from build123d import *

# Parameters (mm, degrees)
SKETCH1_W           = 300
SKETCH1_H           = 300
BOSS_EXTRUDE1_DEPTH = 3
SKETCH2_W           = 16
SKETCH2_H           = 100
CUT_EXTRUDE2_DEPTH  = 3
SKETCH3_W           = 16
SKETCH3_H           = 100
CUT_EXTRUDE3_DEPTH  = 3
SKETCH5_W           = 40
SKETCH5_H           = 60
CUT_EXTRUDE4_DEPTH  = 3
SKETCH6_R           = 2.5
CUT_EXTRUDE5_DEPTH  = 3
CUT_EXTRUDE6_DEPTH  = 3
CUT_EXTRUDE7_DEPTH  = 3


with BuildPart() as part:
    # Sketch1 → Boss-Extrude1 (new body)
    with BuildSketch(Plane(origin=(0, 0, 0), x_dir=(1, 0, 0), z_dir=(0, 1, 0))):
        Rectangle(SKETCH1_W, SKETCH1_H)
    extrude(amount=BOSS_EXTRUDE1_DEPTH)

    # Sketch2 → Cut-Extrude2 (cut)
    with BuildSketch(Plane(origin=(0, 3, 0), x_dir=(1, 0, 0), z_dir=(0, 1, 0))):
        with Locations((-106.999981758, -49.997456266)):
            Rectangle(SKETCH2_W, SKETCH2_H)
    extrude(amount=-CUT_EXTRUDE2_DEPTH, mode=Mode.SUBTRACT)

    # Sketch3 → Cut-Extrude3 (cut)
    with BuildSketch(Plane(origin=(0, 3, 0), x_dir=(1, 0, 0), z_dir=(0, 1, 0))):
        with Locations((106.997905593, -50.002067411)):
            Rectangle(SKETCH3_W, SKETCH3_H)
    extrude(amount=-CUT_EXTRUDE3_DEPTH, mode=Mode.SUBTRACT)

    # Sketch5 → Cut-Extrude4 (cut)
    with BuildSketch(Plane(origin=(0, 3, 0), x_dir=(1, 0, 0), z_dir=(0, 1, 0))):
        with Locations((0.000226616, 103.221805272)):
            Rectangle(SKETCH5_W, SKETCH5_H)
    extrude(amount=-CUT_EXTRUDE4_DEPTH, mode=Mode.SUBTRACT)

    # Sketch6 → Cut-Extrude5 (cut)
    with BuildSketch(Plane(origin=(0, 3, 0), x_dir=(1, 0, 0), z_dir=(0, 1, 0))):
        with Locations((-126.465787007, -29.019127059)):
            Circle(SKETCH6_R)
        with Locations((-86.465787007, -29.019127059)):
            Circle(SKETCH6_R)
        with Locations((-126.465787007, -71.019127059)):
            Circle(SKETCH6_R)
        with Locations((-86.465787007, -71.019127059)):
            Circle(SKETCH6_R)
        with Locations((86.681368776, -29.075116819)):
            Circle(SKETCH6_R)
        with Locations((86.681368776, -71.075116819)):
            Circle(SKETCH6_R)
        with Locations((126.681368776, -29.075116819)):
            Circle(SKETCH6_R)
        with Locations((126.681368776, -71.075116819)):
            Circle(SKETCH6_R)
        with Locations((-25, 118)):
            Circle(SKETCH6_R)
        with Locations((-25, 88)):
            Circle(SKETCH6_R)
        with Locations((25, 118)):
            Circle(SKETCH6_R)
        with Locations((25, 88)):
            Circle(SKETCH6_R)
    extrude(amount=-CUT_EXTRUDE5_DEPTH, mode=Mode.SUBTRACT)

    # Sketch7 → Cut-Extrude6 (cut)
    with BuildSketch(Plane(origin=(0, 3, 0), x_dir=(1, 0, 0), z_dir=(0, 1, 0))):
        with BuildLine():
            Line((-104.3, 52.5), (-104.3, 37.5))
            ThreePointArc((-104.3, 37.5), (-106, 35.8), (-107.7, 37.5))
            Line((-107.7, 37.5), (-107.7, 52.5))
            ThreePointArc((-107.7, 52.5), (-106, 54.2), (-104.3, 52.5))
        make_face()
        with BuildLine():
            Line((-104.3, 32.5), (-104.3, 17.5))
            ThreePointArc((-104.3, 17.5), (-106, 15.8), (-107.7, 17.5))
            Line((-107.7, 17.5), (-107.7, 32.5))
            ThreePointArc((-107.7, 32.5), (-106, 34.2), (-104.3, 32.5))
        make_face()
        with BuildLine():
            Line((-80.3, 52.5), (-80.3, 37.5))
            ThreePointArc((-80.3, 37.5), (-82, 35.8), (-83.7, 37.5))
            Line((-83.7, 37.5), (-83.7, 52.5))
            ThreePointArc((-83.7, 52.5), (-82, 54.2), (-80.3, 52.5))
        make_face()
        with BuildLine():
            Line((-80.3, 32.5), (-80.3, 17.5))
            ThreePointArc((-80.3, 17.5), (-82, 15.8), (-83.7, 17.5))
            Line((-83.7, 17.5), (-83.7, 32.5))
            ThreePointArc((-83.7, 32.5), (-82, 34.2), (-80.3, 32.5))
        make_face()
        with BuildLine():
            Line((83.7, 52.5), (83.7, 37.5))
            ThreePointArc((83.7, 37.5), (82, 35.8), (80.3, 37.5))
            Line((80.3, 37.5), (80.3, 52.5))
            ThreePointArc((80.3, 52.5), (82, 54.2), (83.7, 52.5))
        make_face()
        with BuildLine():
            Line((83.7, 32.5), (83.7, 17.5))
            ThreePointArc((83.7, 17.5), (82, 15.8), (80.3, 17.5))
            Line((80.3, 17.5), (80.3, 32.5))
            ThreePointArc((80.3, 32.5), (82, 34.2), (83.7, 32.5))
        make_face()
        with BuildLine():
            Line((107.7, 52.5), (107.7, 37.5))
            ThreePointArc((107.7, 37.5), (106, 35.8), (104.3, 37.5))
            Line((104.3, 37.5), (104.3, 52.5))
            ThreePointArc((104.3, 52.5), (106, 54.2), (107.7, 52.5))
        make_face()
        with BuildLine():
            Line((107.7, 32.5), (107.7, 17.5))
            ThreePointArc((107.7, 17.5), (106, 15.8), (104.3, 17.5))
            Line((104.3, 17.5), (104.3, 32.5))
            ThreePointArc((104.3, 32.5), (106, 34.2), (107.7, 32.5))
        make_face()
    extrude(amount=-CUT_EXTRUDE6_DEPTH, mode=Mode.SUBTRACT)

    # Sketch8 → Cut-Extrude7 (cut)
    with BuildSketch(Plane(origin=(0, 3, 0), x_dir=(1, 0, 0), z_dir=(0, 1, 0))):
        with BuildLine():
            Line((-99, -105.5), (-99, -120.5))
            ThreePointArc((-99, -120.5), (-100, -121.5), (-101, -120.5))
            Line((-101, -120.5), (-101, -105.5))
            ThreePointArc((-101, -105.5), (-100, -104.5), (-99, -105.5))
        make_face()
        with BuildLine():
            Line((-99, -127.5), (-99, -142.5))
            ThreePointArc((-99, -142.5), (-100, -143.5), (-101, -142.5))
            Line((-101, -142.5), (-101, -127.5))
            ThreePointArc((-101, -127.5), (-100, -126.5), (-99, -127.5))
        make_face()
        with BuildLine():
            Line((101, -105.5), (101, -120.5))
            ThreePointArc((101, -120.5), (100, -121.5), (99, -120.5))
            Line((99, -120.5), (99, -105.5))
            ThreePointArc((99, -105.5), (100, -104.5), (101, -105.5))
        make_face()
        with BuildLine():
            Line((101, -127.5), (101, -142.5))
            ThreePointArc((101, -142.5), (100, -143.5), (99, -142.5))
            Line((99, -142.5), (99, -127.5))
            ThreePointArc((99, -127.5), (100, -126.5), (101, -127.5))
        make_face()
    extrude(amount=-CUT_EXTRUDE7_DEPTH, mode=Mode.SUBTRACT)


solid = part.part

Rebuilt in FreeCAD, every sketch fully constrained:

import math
import FreeCAD as App
import Part
import Sketcher
Q = App.Units.Quantity

doc = App.newDocument("Part")
body = doc.addObject("PartDesign::Body", "Body")

sketch1 = body.newObject("Sketcher::SketchObject", "Sketch")
sketch1.AttachmentSupport = (doc.getObject("XZ_Plane"), [""])
sketch1.MapMode = "FlatFace"
sketch1.addGeometry([
    Part.LineSegment(App.Vector(-150, -150, 0), App.Vector(-150, 150, 0)),
    Part.LineSegment(App.Vector(-150, 150, 0), App.Vector(150, 150, 0)),
    Part.LineSegment(App.Vector(150, 150, 0), App.Vector(150, -150, 0)),
    Part.LineSegment(App.Vector(150, -150, 0), App.Vector(-150, -150, 0)),
], False)
sketch1.addConstraint([
    Sketcher.Constraint("Coincident", 0, 2, 1, 1),
    Sketcher.Constraint("Coincident", 1, 2, 2, 1),
    Sketcher.Constraint("Coincident", 2, 2, 3, 1),
    Sketcher.Constraint("Coincident", 3, 2, 0, 1),
    Sketcher.Constraint("Vertical", 0),
    Sketcher.Constraint("Horizontal", 1),
    Sketcher.Constraint("Vertical", 2),
    Sketcher.Constraint("Horizontal", 3),
    Sketcher.Constraint("Symmetric", 0, 2, 2, 2, -1, 1),
    Sketcher.Constraint("Equal", 3, 0),
    Sketcher.Constraint("DistanceX", 1, 1, 1, 2, Q("300 mm")),
])
pad1 = body.newObject("PartDesign::Pad", "Pad")
pad1.Profile = sketch1
pad1.Length = 3
pad1.Reversed = True

sketch2 = body.newObject("Sketcher::SketchObject", "Sketch001")
sketch2.AttachmentSupport = (doc.getObject("XZ_Plane"), [""])
sketch2.MapMode = "FlatFace"
sketch2.AttachmentOffset = App.Placement(App.Vector(0, 0, -3), App.Rotation())
sketch2.addGeometry([
    Part.LineSegment(App.Vector(-115, 0, 0), App.Vector(-115, 100, 0)),
    Part.LineSegment(App.Vector(-115, 100, 0), App.Vector(-99, 100, 0)),
    Part.LineSegment(App.Vector(-99, 100, 0), App.Vector(-99, 0, 0)),
    Part.LineSegment(App.Vector(-99, 0, 0), App.Vector(-115, 0, 0)),
], False)
sketch2.addConstraint([
    Sketcher.Constraint("Coincident", 0, 2, 1, 1),
    Sketcher.Constraint("Coincident", 1, 2, 2, 1),
    Sketcher.Constraint("Coincident", 2, 2, 3, 1),
    Sketcher.Constraint("Coincident", 3, 2, 0, 1),
    Sketcher.Constraint("Vertical", 0),
    Sketcher.Constraint("Horizontal", 1),
    Sketcher.Constraint("Vertical", 2),
    Sketcher.Constraint("Horizontal", 3),
    Sketcher.Constraint("DistanceX", 1, 1, 1, 2, Q("16 mm")),
    Sketcher.Constraint("DistanceY", 0, 1, 0, 2, Q("100 mm")),
    Sketcher.Constraint("DistanceX", 0, 2, -1, 1, Q("114.999982 mm")),
    Sketcher.Constraint("DistanceY", -1, 1, 0, 2, Q("99.997456 mm")),
])
pocket1 = body.newObject("PartDesign::Pocket", "Pocket")
pocket1.Profile = sketch2
pocket1.Length = 3
pocket1.Reversed = True

sketch3 = body.newObject("Sketcher::SketchObject", "Sketch002")
sketch3.AttachmentSupport = (doc.getObject("XZ_Plane"), [""])
sketch3.MapMode = "FlatFace"
sketch3.AttachmentOffset = App.Placement(App.Vector(0, 0, -3), App.Rotation())
sketch3.addGeometry([
    Part.LineSegment(App.Vector(99, 0, 0), App.Vector(99, 100, 0)),
    Part.LineSegment(App.Vector(99, 100, 0), App.Vector(115, 100, 0)),
    Part.LineSegment(App.Vector(115, 100, 0), App.Vector(115, 0, 0)),
    Part.LineSegment(App.Vector(115, 0, 0), App.Vector(99, 0, 0)),
], False)
sketch3.addConstraint([
    Sketcher.Constraint("Coincident", 0, 2, 1, 1),
    Sketcher.Constraint("Coincident", 1, 2, 2, 1),
    Sketcher.Constraint("Coincident", 2, 2, 3, 1),
    Sketcher.Constraint("Coincident", 3, 2, 0, 1),
    Sketcher.Constraint("Vertical", 0),
    Sketcher.Constraint("Horizontal", 1),
    Sketcher.Constraint("Vertical", 2),
    Sketcher.Constraint("Horizontal", 3),
    Sketcher.Constraint("DistanceX", 1, 1, 1, 2, Q("16 mm")),
    Sketcher.Constraint("DistanceY", 0, 1, 0, 2, Q("100 mm")),
    Sketcher.Constraint("DistanceX", -1, 1, 0, 2, Q("98.997906 mm")),
    Sketcher.Constraint("DistanceY", -1, 1, 0, 2, Q("100.002067 mm")),
])
pocket2 = body.newObject("PartDesign::Pocket", "Pocket001")
pocket2.Profile = sketch3
pocket2.Length = 3
pocket2.Reversed = True

sketch4 = body.newObject("Sketcher::SketchObject", "Sketch003")
sketch4.AttachmentSupport = (doc.getObject("XZ_Plane"), [""])
sketch4.MapMode = "FlatFace"
sketch4.AttachmentOffset = App.Placement(App.Vector(0, 0, -3), App.Rotation())
sketch4.addGeometry([
    Part.LineSegment(App.Vector(-20, -133, 0), App.Vector(-20, -73, 0)),
    Part.LineSegment(App.Vector(-20, -73, 0), App.Vector(20, -73, 0)),
    Part.LineSegment(App.Vector(20, -73, 0), App.Vector(20, -133, 0)),
    Part.LineSegment(App.Vector(20, -133, 0), App.Vector(-20, -133, 0)),
], False)
sketch4.addConstraint([
    Sketcher.Constraint("Coincident", 0, 2, 1, 1),
    Sketcher.Constraint("Coincident", 1, 2, 2, 1),
    Sketcher.Constraint("Coincident", 2, 2, 3, 1),
    Sketcher.Constraint("Coincident", 3, 2, 0, 1),
    Sketcher.Constraint("Vertical", 0),
    Sketcher.Constraint("Horizontal", 1),
    Sketcher.Constraint("Vertical", 2),
    Sketcher.Constraint("Horizontal", 3),
    Sketcher.Constraint("DistanceX", 1, 1, 1, 2, Q("40 mm")),
    Sketcher.Constraint("DistanceY", 0, 1, 0, 2, Q("60 mm")),
    Sketcher.Constraint("DistanceX", 0, 2, -1, 1, Q("19.999773 mm")),
    Sketcher.Constraint("DistanceY", 0, 2, -1, 1, Q("73.221805 mm")),
])
pocket3 = body.newObject("PartDesign::Pocket", "Pocket002")
pocket3.Profile = sketch4
pocket3.Length = 3
pocket3.Reversed = True

sketch5 = body.newObject("Sketcher::SketchObject", "Sketch004")
sketch5.AttachmentSupport = (doc.getObject("XZ_Plane"), [""])
sketch5.MapMode = "FlatFace"
sketch5.AttachmentOffset = App.Placement(App.Vector(0, 0, -3), App.Rotation())
sketch5.addGeometry([
    Part.Circle(App.Vector(-126.5, 29, 0), App.Vector(0, 0, 1), 2.5),
    Part.Circle(App.Vector(-86.5, 29, 0), App.Vector(0, 0, 1), 2.5),
    Part.Circle(App.Vector(-126.5, 71, 0), App.Vector(0, 0, 1), 2.5),
    Part.Circle(App.Vector(-86.5, 71, 0), App.Vector(0, 0, 1), 2.5),
    Part.Circle(App.Vector(86.7, 29.1, 0), App.Vector(0, 0, 1), 2.5),
    Part.Circle(App.Vector(86.7, 71.1, 0), App.Vector(0, 0, 1), 2.5),
    Part.Circle(App.Vector(126.7, 29.1, 0), App.Vector(0, 0, 1), 2.5),
    Part.Circle(App.Vector(126.7, 71.1, 0), App.Vector(0, 0, 1), 2.5),
    Part.Circle(App.Vector(-25, -118, 0), App.Vector(0, 0, 1), 2.5),
    Part.Circle(App.Vector(-25, -88, 0), App.Vector(0, 0, 1), 2.5),
    Part.Circle(App.Vector(25, -118, 0), App.Vector(0, 0, 1), 2.5),
    Part.Circle(App.Vector(25, -88, 0), App.Vector(0, 0, 1), 2.5),
], False)
sketch5.addConstraint([
    Sketcher.Constraint("Equal", 0, 1),
    Sketcher.Constraint("Equal", 1, 2),
    Sketcher.Constraint("Equal", 2, 3),
    Sketcher.Constraint("Equal", 3, 4),
    Sketcher.Constraint("Equal", 4, 5),
    Sketcher.Constraint("Equal", 5, 6),
    Sketcher.Constraint("Equal", 6, 7),
    Sketcher.Constraint("Equal", 7, 8),
    Sketcher.Constraint("Equal", 8, 9),
    Sketcher.Constraint("Equal", 9, 10),
    Sketcher.Constraint("Equal", 10, 11),
    Sketcher.Constraint("Symmetric", 8, 3, 10, 3, -2),
    Sketcher.Constraint("Symmetric", 9, 3, 11, 3, -2),
    Sketcher.Constraint("Horizontal", 0, 3, 1, 3),
    Sketcher.Constraint("Horizontal", 2, 3, 3, 3),
    Sketcher.Constraint("Horizontal", 4, 3, 6, 3),
    Sketcher.Constraint("Horizontal", 5, 3, 7, 3),
    Sketcher.Constraint("Vertical", 0, 3, 2, 3),
    Sketcher.Constraint("Vertical", 1, 3, 3, 3),
    Sketcher.Constraint("Vertical", 4, 3, 5, 3),
    Sketcher.Constraint("Vertical", 6, 3, 7, 3),
    Sketcher.Constraint("Vertical", 8, 3, 9, 3),
    Sketcher.Constraint("Diameter", 0, Q("5 mm")),
    Sketcher.Constraint("DistanceX", 8, 3, -1, 1, Q("25 mm")),
    Sketcher.Constraint("DistanceY", 8, 3, -1, 1, Q("118 mm")),
    Sketcher.Constraint("DistanceY", 9, 3, -1, 1, Q("88 mm")),
    Sketcher.Constraint("DistanceX", 0, 3, 1, 3, Q("40 mm")),
    Sketcher.Constraint("DistanceY", 0, 3, 2, 3, Q("42 mm")),
    Sketcher.Constraint("DistanceY", 4, 3, 5, 3, Q("42 mm")),
    Sketcher.Constraint("DistanceX", 4, 3, 6, 3, Q("40 mm")),
    Sketcher.Constraint("DistanceX", -1, 1, 4, 3, Q("86.681369 mm")),
    Sketcher.Constraint("DistanceY", 1, 3, 4, 3, Q("0.05599 mm")),
    Sketcher.Constraint("DistanceX", 0, 3, -1, 1, Q("126.465787 mm")),
    Sketcher.Constraint("DistanceY", -1, 1, 0, 3, Q("29.019127 mm")),
])
pocket4 = body.newObject("PartDesign::Pocket", "Pocket003")
pocket4.Profile = sketch5
pocket4.Length = 3
pocket4.Reversed = True

sketch6 = body.newObject("Sketcher::SketchObject", "Sketch005")
sketch6.AttachmentSupport = (doc.getObject("XZ_Plane"), [""])
sketch6.MapMode = "FlatFace"
sketch6.AttachmentOffset = App.Placement(App.Vector(0, 0, -3), App.Rotation())
sketch6.addGeometry([
    Part.LineSegment(App.Vector(-104.3, -37.5, 0), App.Vector(-104.3, -52.5, 0)),
    Part.ArcOfCircle(Part.Circle(App.Vector(-106, -52.5, 0), App.Vector(0, 0, 1), 1.7), math.radians(180), math.radians(360)),
    Part.LineSegment(App.Vector(-107.7, -52.5, 0), App.Vector(-107.7, -37.5, 0)),
    Part.ArcOfCircle(Part.Circle(App.Vector(-106, -37.5, 0), App.Vector(0, 0, 1), 1.7), math.radians(0), math.radians(180)),
    Part.LineSegment(App.Vector(-104.3, -17.5, 0), App.Vector(-104.3, -32.5, 0)),
    Part.ArcOfCircle(Part.Circle(App.Vector(-106, -32.5, 0), App.Vector(0, 0, 1), 1.7), math.radians(180), math.radians(360)),
    Part.LineSegment(App.Vector(-107.7, -32.5, 0), App.Vector(-107.7, -17.5, 0)),
    Part.ArcOfCircle(Part.Circle(App.Vector(-106, -17.5, 0), App.Vector(0, 0, 1), 1.7), math.radians(0), math.radians(180)),
    Part.LineSegment(App.Vector(-80.3, -37.5, 0), App.Vector(-80.3, -52.5, 0)),
    Part.ArcOfCircle(Part.Circle(App.Vector(-82, -52.5, 0), App.Vector(0, 0, 1), 1.7), math.radians(180), math.radians(360)),
    Part.LineSegment(App.Vector(-83.7, -52.5, 0), App.Vector(-83.7, -37.5, 0)),
    Part.ArcOfCircle(Part.Circle(App.Vector(-82, -37.5, 0), App.Vector(0, 0, 1), 1.7), math.radians(0), math.radians(180)),
    Part.LineSegment(App.Vector(-80.3, -17.5, 0), App.Vector(-80.3, -32.5, 0)),
    Part.ArcOfCircle(Part.Circle(App.Vector(-82, -32.5, 0), App.Vector(0, 0, 1), 1.7), math.radians(180), math.radians(360)),
    Part.LineSegment(App.Vector(-83.7, -32.5, 0), App.Vector(-83.7, -17.5, 0)),
    Part.ArcOfCircle(Part.Circle(App.Vector(-82, -17.5, 0), App.Vector(0, 0, 1), 1.7), math.radians(0), math.radians(180)),
    Part.LineSegment(App.Vector(83.7, -37.5, 0), App.Vector(83.7, -52.5, 0)),
    Part.ArcOfCircle(Part.Circle(App.Vector(82, -52.5, 0), App.Vector(0, 0, 1), 1.7), math.radians(180), math.radians(360)),
    Part.LineSegment(App.Vector(80.3, -52.5, 0), App.Vector(80.3, -37.5, 0)),
    Part.ArcOfCircle(Part.Circle(App.Vector(82, -37.5, 0), App.Vector(0, 0, 1), 1.7), math.radians(0), math.radians(180)),
    Part.LineSegment(App.Vector(83.7, -17.5, 0), App.Vector(83.7, -32.5, 0)),
    Part.ArcOfCircle(Part.Circle(App.Vector(82, -32.5, 0), App.Vector(0, 0, 1), 1.7), math.radians(180), math.radians(360)),
    Part.LineSegment(App.Vector(80.3, -32.5, 0), App.Vector(80.3, -17.5, 0)),
    Part.ArcOfCircle(Part.Circle(App.Vector(82, -17.5, 0), App.Vector(0, 0, 1), 1.7), math.radians(0), math.radians(180)),
    Part.LineSegment(App.Vector(107.7, -37.5, 0), App.Vector(107.7, -52.5, 0)),
    Part.ArcOfCircle(Part.Circle(App.Vector(106, -52.5, 0), App.Vector(0, 0, 1), 1.7), math.radians(180), math.radians(360)),
    Part.LineSegment(App.Vector(104.3, -52.5, 0), App.Vector(104.3, -37.5, 0)),
    Part.ArcOfCircle(Part.Circle(App.Vector(106, -37.5, 0), App.Vector(0, 0, 1), 1.7), math.radians(0), math.radians(180)),
    Part.LineSegment(App.Vector(107.7, -17.5, 0), App.Vector(107.7, -32.5, 0)),
    Part.ArcOfCircle(Part.Circle(App.Vector(106, -32.5, 0), App.Vector(0, 0, 1), 1.7), math.radians(180), math.radians(360)),
    Part.LineSegment(App.Vector(104.3, -32.5, 0), App.Vector(104.3, -17.5, 0)),
    Part.ArcOfCircle(Part.Circle(App.Vector(106, -17.5, 0), App.Vector(0, 0, 1), 1.7), math.radians(0), math.radians(180)),
], False)
sketch6.addConstraint([
    Sketcher.Constraint("Tangent", 0, 2, 1, 2),
    Sketcher.Constraint("Tangent", 1, 1, 2, 1),
    Sketcher.Constraint("Tangent", 2, 2, 3, 2),
    Sketcher.Constraint("Tangent", 3, 1, 0, 1),
    Sketcher.Constraint("Tangent", 4, 2, 5, 2),
    Sketcher.Constraint("Tangent", 5, 1, 6, 1),
    Sketcher.Constraint("Tangent", 6, 2, 7, 2),
    Sketcher.Constraint("Tangent", 7, 1, 4, 1),
    Sketcher.Constraint("Tangent", 8, 2, 9, 2),
    Sketcher.Constraint("Tangent", 9, 1, 10, 1),
    Sketcher.Constraint("Tangent", 10, 2, 11, 2),
    Sketcher.Constraint("Tangent", 11, 1, 8, 1),
    Sketcher.Constraint("Tangent", 12, 2, 13, 2),
    Sketcher.Constraint("Tangent", 13, 1, 14, 1),
    Sketcher.Constraint("Tangent", 14, 2, 15, 2),
    Sketcher.Constraint("Tangent", 15, 1, 12, 1),
    Sketcher.Constraint("Tangent", 16, 2, 17, 2),
    Sketcher.Constraint("Tangent", 17, 1, 18, 1),
    Sketcher.Constraint("Tangent", 18, 2, 19, 2),
    Sketcher.Constraint("Tangent", 19, 1, 16, 1),
    Sketcher.Constraint("Tangent", 20, 2, 21, 2),
    Sketcher.Constraint("Tangent", 21, 1, 22, 1),
    Sketcher.Constraint("Tangent", 22, 2, 23, 2),
    Sketcher.Constraint("Tangent", 23, 1, 20, 1),
    Sketcher.Constraint("Tangent", 24, 2, 25, 2),
    Sketcher.Constraint("Tangent", 25, 1, 26, 1),
    Sketcher.Constraint("Tangent", 26, 2, 27, 2),
    Sketcher.Constraint("Tangent", 27, 1, 24, 1),
    Sketcher.Constraint("Tangent", 28, 2, 29, 2),
    Sketcher.Constraint("Tangent", 29, 1, 30, 1),
    Sketcher.Constraint("Tangent", 30, 2, 31, 2),
    Sketcher.Constraint("Tangent", 31, 1, 28, 1),
    Sketcher.Constraint("Vertical", 0),
    Sketcher.Constraint("Vertical", 2),
    Sketcher.Constraint("Vertical", 4),
    Sketcher.Constraint("Vertical", 6),
    Sketcher.Constraint("Vertical", 8),
    Sketcher.Constraint("Vertical", 10),
    Sketcher.Constraint("Vertical", 12),
    Sketcher.Constraint("Vertical", 14),
    Sketcher.Constraint("Vertical", 16),
    Sketcher.Constraint("Vertical", 18),
    Sketcher.Constraint("Vertical", 20),
    Sketcher.Constraint("Vertical", 22),
    Sketcher.Constraint("Vertical", 24),
    Sketcher.Constraint("Vertical", 26),
    Sketcher.Constraint("Vertical", 28),
    Sketcher.Constraint("Vertical", 30),
    Sketcher.Constraint("Equal", 3, 5),
    Sketcher.Constraint("Equal", 7, 9),
    Sketcher.Constraint("Equal", 11, 13),
    Sketcher.Constraint("Equal", 15, 17),
    Sketcher.Constraint("Equal", 19, 21),
    Sketcher.Constraint("Equal", 23, 25),
    Sketcher.Constraint("Equal", 27, 29),
    Sketcher.Constraint("Symmetric", 9, 3, 17, 3, -2),
    Sketcher.Constraint("Symmetric", 13, 3, 21, 3, -2),
    Sketcher.Constraint("Symmetric", 1, 3, 25, 3, -2),
    Sketcher.Constraint("Symmetric", 5, 3, 29, 3, -2),
    Sketcher.Constraint("Horizontal", 1, 3, 9, 3),
    Sketcher.Constraint("Horizontal", 3, 3, 11, 3),
    Sketcher.Constraint("Horizontal", 5, 3, 13, 3),
    Sketcher.Constraint("Horizontal", 7, 3, 15, 3),
    Sketcher.Constraint("Horizontal", 11, 3, 19, 3),
    Sketcher.Constraint("Horizontal", 15, 3, 23, 3),
    Sketcher.Constraint("Horizontal", 19, 3, 27, 3),
    Sketcher.Constraint("Horizontal", 23, 3, 31, 3),
    Sketcher.Constraint("Vertical", 3, 3, 5, 3),
    Sketcher.Constraint("Vertical", 11, 3, 13, 3),
    Sketcher.Constraint("Equal", 2, 4),
    Sketcher.Constraint("Radius", 1, Q("1.7 mm")),
    Sketcher.Constraint("DistanceY", 0, 2, 0, 1, Q("15 mm")),
    Sketcher.Constraint("DistanceX", 1, 3, -1, 1, Q("106 mm")),
    Sketcher.Constraint("DistanceX", 9, 3, -1, 1, Q("82 mm")),
    Sketcher.Constraint("DistanceY", 3, 3, 5, 3, Q("5 mm")),
    Sketcher.Constraint("DistanceY", 1, 3, -1, 1, Q("52.5 mm")),
])
pocket5 = body.newObject("PartDesign::Pocket", "Pocket004")
pocket5.Profile = sketch6
pocket5.Length = 3
pocket5.Reversed = True

sketch7 = body.newObject("Sketcher::SketchObject", "Sketch006")
sketch7.AttachmentSupport = (doc.getObject("XZ_Plane"), [""])
sketch7.MapMode = "FlatFace"
sketch7.AttachmentOffset = App.Placement(App.Vector(0, 0, -3), App.Rotation())
sketch7.addGeometry([
    Part.LineSegment(App.Vector(-99, 120.5, 0), App.Vector(-99, 105.5, 0)),
    Part.ArcOfCircle(Part.Circle(App.Vector(-100, 105.5, 0), App.Vector(0, 0, 1), 1), math.radians(180), math.radians(360)),
    Part.LineSegment(App.Vector(-101, 105.5, 0), App.Vector(-101, 120.5, 0)),
    Part.ArcOfCircle(Part.Circle(App.Vector(-100, 120.5, 0), App.Vector(0, 0, 1), 1), math.radians(0), math.radians(180)),
    Part.LineSegment(App.Vector(-99, 142.5, 0), App.Vector(-99, 127.5, 0)),
    Part.ArcOfCircle(Part.Circle(App.Vector(-100, 127.5, 0), App.Vector(0, 0, 1), 1), math.radians(180), math.radians(360)),
    Part.LineSegment(App.Vector(-101, 127.5, 0), App.Vector(-101, 142.5, 0)),
    Part.ArcOfCircle(Part.Circle(App.Vector(-100, 142.5, 0), App.Vector(0, 0, 1), 1), math.radians(0), math.radians(180)),
    Part.LineSegment(App.Vector(101, 120.5, 0), App.Vector(101, 105.5, 0)),
    Part.ArcOfCircle(Part.Circle(App.Vector(100, 105.5, 0), App.Vector(0, 0, 1), 1), math.radians(180), math.radians(360)),
    Part.LineSegment(App.Vector(99, 105.5, 0), App.Vector(99, 120.5, 0)),
    Part.ArcOfCircle(Part.Circle(App.Vector(100, 120.5, 0), App.Vector(0, 0, 1), 1), math.radians(0), math.radians(180)),
    Part.LineSegment(App.Vector(101, 142.5, 0), App.Vector(101, 127.5, 0)),
    Part.ArcOfCircle(Part.Circle(App.Vector(100, 127.5, 0), App.Vector(0, 0, 1), 1), math.radians(180), math.radians(360)),
    Part.LineSegment(App.Vector(99, 127.5, 0), App.Vector(99, 142.5, 0)),
    Part.ArcOfCircle(Part.Circle(App.Vector(100, 142.5, 0), App.Vector(0, 0, 1), 1), math.radians(0), math.radians(180)),
], False)
sketch7.addConstraint([
    Sketcher.Constraint("Tangent", 0, 2, 1, 2),
    Sketcher.Constraint("Tangent", 1, 1, 2, 1),
    Sketcher.Constraint("Tangent", 2, 2, 3, 2),
    Sketcher.Constraint("Tangent", 3, 1, 0, 1),
    Sketcher.Constraint("Tangent", 4, 2, 5, 2),
    Sketcher.Constraint("Tangent", 5, 1, 6, 1),
    Sketcher.Constraint("Tangent", 6, 2, 7, 2),
    Sketcher.Constraint("Tangent", 7, 1, 4, 1),
    Sketcher.Constraint("Tangent", 8, 2, 9, 2),
    Sketcher.Constraint("Tangent", 9, 1, 10, 1),
    Sketcher.Constraint("Tangent", 10, 2, 11, 2),
    Sketcher.Constraint("Tangent", 11, 1, 8, 1),
    Sketcher.Constraint("Tangent", 12, 2, 13, 2),
    Sketcher.Constraint("Tangent", 13, 1, 14, 1),
    Sketcher.Constraint("Tangent", 14, 2, 15, 2),
    Sketcher.Constraint("Tangent", 15, 1, 12, 1),
    Sketcher.Constraint("Vertical", 0),
    Sketcher.Constraint("Vertical", 2),
    Sketcher.Constraint("Vertical", 4),
    Sketcher.Constraint("Vertical", 6),
    Sketcher.Constraint("Vertical", 8),
    Sketcher.Constraint("Vertical", 10),
    Sketcher.Constraint("Vertical", 12),
    Sketcher.Constraint("Vertical", 14),
    Sketcher.Constraint("Equal", 3, 5),
    Sketcher.Constraint("Equal", 7, 9),
    Sketcher.Constraint("Equal", 11, 13),
    Sketcher.Constraint("Symmetric", 1, 3, 9, 3, -2),
    Sketcher.Constraint("Symmetric", 5, 3, 13, 3, -2),
    Sketcher.Constraint("Horizontal", 3, 3, 11, 3),
    Sketcher.Constraint("Horizontal", 7, 3, 15, 3),
    Sketcher.Constraint("Vertical", 3, 3, 5, 3),
    Sketcher.Constraint("Equal", 2, 4),
    Sketcher.Constraint("Radius", 1, Q("1 mm")),
    Sketcher.Constraint("DistanceY", 0, 2, 0, 1, Q("15 mm")),
    Sketcher.Constraint("DistanceX", 1, 3, -1, 1, Q("100 mm")),
    Sketcher.Constraint("DistanceY", 3, 3, 5, 3, Q("7 mm")),
    Sketcher.Constraint("DistanceY", -1, 1, 1, 3, Q("105.5 mm")),
])
pocket6 = body.newObject("PartDesign::Pocket", "Pocket005")
pocket6.Profile = sketch7
pocket6.Length = 3
pocket6.Reversed = True

doc.recompute()
